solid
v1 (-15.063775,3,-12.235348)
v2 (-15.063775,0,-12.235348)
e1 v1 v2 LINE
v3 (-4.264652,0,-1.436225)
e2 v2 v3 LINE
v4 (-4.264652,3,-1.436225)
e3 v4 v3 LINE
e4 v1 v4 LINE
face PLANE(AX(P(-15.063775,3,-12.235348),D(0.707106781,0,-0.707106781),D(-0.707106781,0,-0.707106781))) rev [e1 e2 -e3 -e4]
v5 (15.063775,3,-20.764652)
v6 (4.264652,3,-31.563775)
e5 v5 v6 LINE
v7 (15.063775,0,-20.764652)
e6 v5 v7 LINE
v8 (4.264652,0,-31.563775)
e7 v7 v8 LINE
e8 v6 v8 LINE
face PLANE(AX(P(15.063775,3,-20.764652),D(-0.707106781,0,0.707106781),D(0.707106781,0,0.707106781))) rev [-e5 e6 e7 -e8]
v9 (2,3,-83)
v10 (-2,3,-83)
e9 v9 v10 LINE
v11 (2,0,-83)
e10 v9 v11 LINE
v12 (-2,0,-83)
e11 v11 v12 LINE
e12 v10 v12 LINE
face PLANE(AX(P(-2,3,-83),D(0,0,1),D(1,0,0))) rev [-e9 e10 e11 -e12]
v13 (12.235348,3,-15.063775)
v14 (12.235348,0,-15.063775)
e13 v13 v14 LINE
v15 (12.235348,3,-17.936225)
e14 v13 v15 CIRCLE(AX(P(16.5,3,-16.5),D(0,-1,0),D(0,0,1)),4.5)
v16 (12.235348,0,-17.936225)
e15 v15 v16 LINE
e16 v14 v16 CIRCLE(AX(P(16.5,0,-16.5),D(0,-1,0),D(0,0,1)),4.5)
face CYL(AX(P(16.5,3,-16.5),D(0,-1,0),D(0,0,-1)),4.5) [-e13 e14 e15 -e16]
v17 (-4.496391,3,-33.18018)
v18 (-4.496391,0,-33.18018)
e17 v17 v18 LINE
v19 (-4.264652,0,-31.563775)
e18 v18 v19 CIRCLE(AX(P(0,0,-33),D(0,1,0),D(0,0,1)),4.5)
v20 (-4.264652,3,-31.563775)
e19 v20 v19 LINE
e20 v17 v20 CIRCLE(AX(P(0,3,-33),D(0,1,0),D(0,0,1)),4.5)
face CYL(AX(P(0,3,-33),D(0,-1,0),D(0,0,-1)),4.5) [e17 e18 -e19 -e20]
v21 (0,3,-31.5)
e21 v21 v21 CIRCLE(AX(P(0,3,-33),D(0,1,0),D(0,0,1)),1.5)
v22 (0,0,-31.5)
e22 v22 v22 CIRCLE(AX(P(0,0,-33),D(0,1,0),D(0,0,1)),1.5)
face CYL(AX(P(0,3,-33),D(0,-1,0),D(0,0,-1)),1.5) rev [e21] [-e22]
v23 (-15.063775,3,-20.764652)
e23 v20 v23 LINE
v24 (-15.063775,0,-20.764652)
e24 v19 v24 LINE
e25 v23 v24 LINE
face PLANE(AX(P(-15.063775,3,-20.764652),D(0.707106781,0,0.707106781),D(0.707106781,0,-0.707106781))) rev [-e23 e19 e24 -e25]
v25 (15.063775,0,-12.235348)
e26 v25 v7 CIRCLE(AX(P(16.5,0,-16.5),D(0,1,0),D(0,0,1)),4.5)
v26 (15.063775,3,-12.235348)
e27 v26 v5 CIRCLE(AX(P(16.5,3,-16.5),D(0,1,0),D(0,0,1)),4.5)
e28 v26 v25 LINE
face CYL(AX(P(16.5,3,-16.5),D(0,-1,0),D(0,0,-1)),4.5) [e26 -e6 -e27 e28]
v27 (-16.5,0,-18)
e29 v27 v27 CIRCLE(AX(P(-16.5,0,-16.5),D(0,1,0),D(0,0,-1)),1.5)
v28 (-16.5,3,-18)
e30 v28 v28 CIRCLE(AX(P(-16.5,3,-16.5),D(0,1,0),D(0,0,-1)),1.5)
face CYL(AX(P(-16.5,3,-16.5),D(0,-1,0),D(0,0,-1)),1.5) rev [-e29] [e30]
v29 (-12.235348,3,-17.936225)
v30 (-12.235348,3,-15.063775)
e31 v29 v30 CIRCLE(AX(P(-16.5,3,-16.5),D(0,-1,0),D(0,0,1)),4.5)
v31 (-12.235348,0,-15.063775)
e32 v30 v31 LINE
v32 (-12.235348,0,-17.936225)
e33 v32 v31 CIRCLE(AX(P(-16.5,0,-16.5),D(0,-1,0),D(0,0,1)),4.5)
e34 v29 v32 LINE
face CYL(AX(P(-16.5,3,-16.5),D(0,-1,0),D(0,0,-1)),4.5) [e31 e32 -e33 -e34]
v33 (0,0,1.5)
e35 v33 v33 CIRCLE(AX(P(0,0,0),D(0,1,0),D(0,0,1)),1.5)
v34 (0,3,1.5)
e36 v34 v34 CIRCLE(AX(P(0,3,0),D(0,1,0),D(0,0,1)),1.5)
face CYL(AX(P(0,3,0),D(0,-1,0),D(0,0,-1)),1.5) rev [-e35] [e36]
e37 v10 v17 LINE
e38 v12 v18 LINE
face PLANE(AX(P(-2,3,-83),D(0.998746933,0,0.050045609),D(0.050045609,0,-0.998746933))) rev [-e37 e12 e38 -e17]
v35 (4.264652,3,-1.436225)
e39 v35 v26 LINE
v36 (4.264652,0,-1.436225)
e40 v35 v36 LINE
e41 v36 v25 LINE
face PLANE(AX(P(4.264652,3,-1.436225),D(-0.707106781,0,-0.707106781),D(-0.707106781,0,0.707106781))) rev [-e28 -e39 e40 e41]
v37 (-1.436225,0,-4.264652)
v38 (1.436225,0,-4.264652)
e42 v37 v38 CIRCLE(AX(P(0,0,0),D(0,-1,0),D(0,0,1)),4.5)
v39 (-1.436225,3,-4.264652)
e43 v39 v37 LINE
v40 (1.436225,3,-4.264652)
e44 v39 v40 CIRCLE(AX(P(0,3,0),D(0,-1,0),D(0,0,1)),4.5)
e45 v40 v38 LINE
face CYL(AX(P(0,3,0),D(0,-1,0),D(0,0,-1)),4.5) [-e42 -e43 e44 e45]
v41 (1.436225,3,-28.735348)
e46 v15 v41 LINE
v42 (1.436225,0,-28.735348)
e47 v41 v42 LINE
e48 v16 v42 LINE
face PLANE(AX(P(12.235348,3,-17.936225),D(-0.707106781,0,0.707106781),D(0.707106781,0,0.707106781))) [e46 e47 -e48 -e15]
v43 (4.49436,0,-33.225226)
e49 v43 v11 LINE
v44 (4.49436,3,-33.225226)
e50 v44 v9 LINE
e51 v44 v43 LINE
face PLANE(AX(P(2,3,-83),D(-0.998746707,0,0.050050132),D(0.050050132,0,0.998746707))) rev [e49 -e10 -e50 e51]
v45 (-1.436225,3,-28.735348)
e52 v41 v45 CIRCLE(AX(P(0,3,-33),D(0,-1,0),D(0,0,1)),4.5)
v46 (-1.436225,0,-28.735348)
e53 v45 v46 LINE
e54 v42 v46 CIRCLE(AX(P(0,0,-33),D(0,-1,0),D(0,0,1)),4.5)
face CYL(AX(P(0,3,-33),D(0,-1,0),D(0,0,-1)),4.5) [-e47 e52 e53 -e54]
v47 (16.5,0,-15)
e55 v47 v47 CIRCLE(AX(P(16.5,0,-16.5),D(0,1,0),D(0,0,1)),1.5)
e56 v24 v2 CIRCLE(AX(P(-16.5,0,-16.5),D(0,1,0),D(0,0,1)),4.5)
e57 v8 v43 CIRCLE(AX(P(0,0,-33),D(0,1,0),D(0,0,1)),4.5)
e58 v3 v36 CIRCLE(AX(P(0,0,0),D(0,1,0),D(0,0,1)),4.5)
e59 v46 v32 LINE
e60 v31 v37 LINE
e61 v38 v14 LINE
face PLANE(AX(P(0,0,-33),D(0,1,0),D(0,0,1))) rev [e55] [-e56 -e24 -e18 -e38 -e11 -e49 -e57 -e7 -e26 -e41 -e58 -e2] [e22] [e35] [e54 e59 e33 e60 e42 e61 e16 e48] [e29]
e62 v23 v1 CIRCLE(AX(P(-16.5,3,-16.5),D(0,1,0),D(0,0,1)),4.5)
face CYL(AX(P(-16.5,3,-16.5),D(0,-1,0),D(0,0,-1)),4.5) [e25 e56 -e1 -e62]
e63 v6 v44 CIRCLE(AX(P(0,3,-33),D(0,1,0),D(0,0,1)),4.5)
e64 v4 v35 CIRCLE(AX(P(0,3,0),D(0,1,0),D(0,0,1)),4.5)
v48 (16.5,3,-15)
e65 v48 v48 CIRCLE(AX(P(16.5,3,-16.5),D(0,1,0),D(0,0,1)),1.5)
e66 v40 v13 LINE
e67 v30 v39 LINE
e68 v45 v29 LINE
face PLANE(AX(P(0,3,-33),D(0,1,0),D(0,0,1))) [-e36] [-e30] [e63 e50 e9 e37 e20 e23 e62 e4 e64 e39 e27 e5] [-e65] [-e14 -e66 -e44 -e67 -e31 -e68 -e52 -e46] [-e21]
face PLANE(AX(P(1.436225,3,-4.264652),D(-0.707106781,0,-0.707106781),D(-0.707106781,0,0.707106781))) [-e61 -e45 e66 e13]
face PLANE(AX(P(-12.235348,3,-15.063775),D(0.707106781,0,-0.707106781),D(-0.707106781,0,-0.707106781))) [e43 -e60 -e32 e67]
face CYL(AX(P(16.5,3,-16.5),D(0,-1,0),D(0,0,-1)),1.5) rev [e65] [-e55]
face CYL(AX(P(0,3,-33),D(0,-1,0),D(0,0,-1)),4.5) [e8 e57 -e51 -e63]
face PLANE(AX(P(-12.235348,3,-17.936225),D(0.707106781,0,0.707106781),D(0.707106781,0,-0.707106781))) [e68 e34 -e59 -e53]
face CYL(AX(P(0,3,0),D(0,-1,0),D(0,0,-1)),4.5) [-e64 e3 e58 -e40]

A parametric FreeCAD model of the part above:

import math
import FreeCAD as App
import Part
import Sketcher
from FreeCAD import Vector
Q = App.Units.Quantity

doc = App.newDocument("Part")
body = doc.addObject("PartDesign::Body", "Body")

sketch1 = body.newObject("Sketcher::SketchObject", "Sketch")
sketch1.AttachmentSupport = (doc.getObject("XZ_Plane"), [""])
sketch1.MapMode = "FlatFace"
sketch1.addGeometry(Part.LineSegment(Vector(2, -83, 0), Vector(-2, -83, 0)), False)
sketch1.addGeometry(Part.LineSegment(Vector(-2, -83, 0), Vector(-4.5, -33.2, 0)), False)
sketch1.addGeometry(Part.ArcOfCircle(Part.Circle(Vector(0, -33, 0), Vector(0, 0, 1), 4.5), math.radians(161), math.radians(182)), False)
sketch1.addGeometry(Part.LineSegment(Vector(-4.3, -31.6, 0), Vector(-15.1, -20.8, 0)), False)
sketch1.addGeometry(Part.ArcOfCircle(Part.Circle(Vector(-16.5, -16.5, 0), Vector(0, 0, 1), 4.5), math.radians(71), math.radians(289)), False)
sketch1.addGeometry(Part.LineSegment(Vector(-15.1, -12.2, 0), Vector(-4.3, -1.4, 0)), False)
sketch1.addGeometry(Part.ArcOfCircle(Part.Circle(Vector(0, 0, 0), Vector(0, 0, 1), 4.5), math.radians(-19), math.radians(199)), False)
sketch1.addGeometry(Part.LineSegment(Vector(4.3, -1.4, 0), Vector(15.1, -12.2, 0)), False)
sketch1.addGeometry(Part.ArcOfCircle(Part.Circle(Vector(16.5, -16.5, 0), Vector(0, 0, 1), 4.5), math.radians(-109), math.radians(109)), False)
sketch1.addGeometry(Part.LineSegment(Vector(15.1, -20.8, 0), Vector(4.3, -31.6, 0)), False)
sketch1.addGeometry(Part.ArcOfCircle(Part.Circle(Vector(0, -33, 0), Vector(0, 0, 1), 4.5), math.radians(-3), math.radians(19)), False)
sketch1.addGeometry(Part.LineSegment(Vector(4.5, -33.2, 0), Vector(2, -83, 0)), False)
sketch1.addGeometry(Part.Circle(Vector(0, 0, 0), Vector(0, 0, 1), 1.5), False)
sketch1.addGeometry(Part.Circle(Vector(16.5, -16.5, 0), Vector(0, 0, 1), 1.5), False)
sketch1.addGeometry(Part.ArcOfCircle(Part.Circle(Vector(16.5, -16.5, 0), Vector(0, 0, 1), 4.5), math.radians(161), math.radians(199)), False)
sketch1.addGeometry(Part.LineSegment(Vector(12.2, -15.1, 0), Vector(1.4, -4.3, 0)), False)
sketch1.addGeometry(Part.ArcOfCircle(Part.Circle(Vector(0, 0, 0), Vector(0, 0, 1), 4.5), math.radians(-109), math.radians(-71)), False)
sketch1.addGeometry(Part.LineSegment(Vector(-1.4, -4.3, 0), Vector(-12.2, -15.1, 0)), False)
sketch1.addGeometry(Part.ArcOfCircle(Part.Circle(Vector(-16.5, -16.5, 0), Vector(0, 0, 1), 4.5), math.radians(-19), math.radians(19)), False)
sketch1.addGeometry(Part.LineSegment(Vector(-12.2, -17.9, 0), Vector(-1.4, -28.7, 0)), False)
sketch1.addGeometry(Part.ArcOfCircle(Part.Circle(Vector(0, -33, 0), Vector(0, 0, 1), 4.5), math.radians(71), math.radians(109)), False)
sketch1.addGeometry(Part.LineSegment(Vector(1.4, -28.7, 0), Vector(12.2, -17.9, 0)), False)
sketch1.addGeometry(Part.Circle(Vector(-16.5, -16.5, 0), Vector(0, 0, 1), 1.5), False)
sketch1.addGeometry(Part.Circle(Vector(0, -33, 0), Vector(0, 0, 1), 1.5), False)
sketch1.addConstraint(Sketcher.Constraint("Coincident", 0, 2, 1, 1))
sketch1.addConstraint(Sketcher.Constraint("Coincident", 1, 2, 2, 2))
sketch1.addConstraint(Sketcher.Constraint("Coincident", 2, 1, 3, 1))
sketch1.addConstraint(Sketcher.Constraint("Coincident", 3, 2, 4, 2))
sketch1.addConstraint(Sketcher.Constraint("Coincident", 4, 1, 5, 1))
sketch1.addConstraint(Sketcher.Constraint("Coincident", 5, 2, 6, 2))
sketch1.addConstraint(Sketcher.Constraint("Coincident", 6, 1, 7, 1))
sketch1.addConstraint(Sketcher.Constraint("Coincident", 7, 2, 8, 2))
sketch1.addConstraint(Sketcher.Constraint("Coincident", 8, 1, 9, 1))
sketch1.addConstraint(Sketcher.Constraint("Coincident", 9, 2, 10, 2))
sketch1.addConstraint(Sketcher.Constraint("Tangent", 10, 1, 11, 1))
sketch1.addConstraint(Sketcher.Constraint("Coincident", 11, 2, 0, 1))
sketch1.addConstraint(Sketcher.Constraint("Coincident", 14, 1, 15, 1))
sketch1.addConstraint(Sketcher.Constraint("Coincident", 15, 2, 16, 2))
sketch1.addConstraint(Sketcher.Constraint("Coincident", 16, 1, 17, 1))
sketch1.addConstraint(Sketcher.Constraint("Coincident", 17, 2, 18, 2))
sketch1.addConstraint(Sketcher.Constraint("Coincident", 18, 1, 19, 1))
sketch1.addConstraint(Sketcher.Constraint("Coincident", 19, 2, 20, 2))
sketch1.addConstraint(Sketcher.Constraint("Coincident", 20, 1, 21, 1))
sketch1.addConstraint(Sketcher.Constraint("Coincident", 21, 2, 14, 2))
sketch1.addConstraint(Sketcher.Constraint("Horizontal", 0))
sketch1.addConstraint(Sketcher.Constraint("Coincident", 6, 3, -1, 1))
sketch1.addConstraint(Sketcher.Constraint("Coincident", 12, 3, -1, 1))
sketch1.addConstraint(Sketcher.Constraint("Coincident", 16, 3, -1, 1))
sketch1.addConstraint(Sketcher.Constraint("Coincident", 10, 3, 2, 3))
sketch1.addConstraint(Sketcher.Constraint("Coincident", 13, 3, 8, 3))
sketch1.addConstraint(Sketcher.Constraint("Coincident", 14, 3, 8, 3))
sketch1.addConstraint(Sketcher.Constraint("Coincident", 18, 3, 4, 3))
sketch1.addConstraint(Sketcher.Constraint("Coincident", 20, 3, 2, 3))
sketch1.addConstraint(Sketcher.Constraint("Coincident", 22, 3, 4, 3))
sketch1.addConstraint(Sketcher.Constraint("Coincident", 23, 3, 2, 3))
sketch1.addConstraint(Sketcher.Constraint("Equal", 2, 4))
sketch1.addConstraint(Sketcher.Constraint("Equal", 4, 6))
sketch1.addConstraint(Sketcher.Constraint("Equal", 6, 8))
sketch1.addConstraint(Sketcher.Constraint("Equal", 8, 10))
sketch1.addConstraint(Sketcher.Constraint("Equal", 12, 13))
sketch1.addConstraint(Sketcher.Constraint("Equal", 10, 14))
sketch1.addConstraint(Sketcher.Constraint("Equal", 14, 16))
sketch1.addConstraint(Sketcher.Constraint("Equal", 16, 18))
sketch1.addConstraint(Sketcher.Constraint("Equal", 18, 20))
sketch1.addConstraint(Sketcher.Constraint("Equal", 13, 22))
sketch1.addConstraint(Sketcher.Constraint("Equal", 22, 23))
sketch1.addConstraint(Sketcher.Constraint("Symmetric", 4, 3, 8, 3, -2))
sketch1.addConstraint(Sketcher.Constraint("Symmetric", 2, 1, 9, 2, -2))
sketch1.addConstraint(Sketcher.Constraint("Perpendicular", 3, 5))
sketch1.addConstraint(Sketcher.Constraint("Perpendicular", 5, 7))
sketch1.addConstraint(Sketcher.Constraint("Perpendicular", 7, 9))
sketch1.addConstraint(Sketcher.Constraint("Perpendicular", 9, 15))
sketch1.addConstraint(Sketcher.Constraint("Perpendicular", 15, 17))
sketch1.addConstraint(Sketcher.Constraint("Perpendicular", 17, 19))
sketch1.addConstraint(Sketcher.Constraint("Perpendicular", 19, 21))
sketch1.addConstraint(Sketcher.Constraint("Horizontal", 5, 2, 6, 1))
sketch1.addConstraint(Sketcher.Constraint("Horizontal", 4, 1, 7, 2))
sketch1.addConstraint(Sketcher.Constraint("Horizontal", 15, 2, 16, 1))
sketch1.addConstraint(Sketcher.Constraint("Horizontal", 19, 2, 20, 1))
sketch1.addConstraint(Sketcher.Constraint("Vertical", 3, 2, 4, 1))
sketch1.addConstraint(Sketcher.Constraint("Vertical", 2, 1, 5, 2))
sketch1.addConstraint(Sketcher.Constraint("Vertical", 17, 2, 18, 1))
sketch1.addConstraint(Sketcher.Constraint("Equal", 9, 15))
sketch1.addConstraint(Sketcher.Constraint("Diameter", 12, Q("3 mm")))
sketch1.addConstraint(Sketcher.Constraint("Radius", 2, Q("4.5 mm")))
sketch1.addConstraint(Sketcher.Constraint("DistanceX", 0, 2, 0, 1, Q("4 mm")))
sketch1.addConstraint(Sketcher.Constraint("DistanceY", 2, 3, -1, 1, Q("33 mm")))
sketch1.addConstraint(Sketcher.Constraint("DistanceX", 0, 2, -1, 1, Q("2 mm")))
sketch1.addConstraint(Sketcher.Constraint("DistanceY", 0, 2, -1, 1, Q("83 mm")))
sketch1.addConstraint(Sketcher.Constraint("DistanceX", 4, 3, 8, 3, Q("33 mm")))
sketch1.addConstraint(Sketcher.Constraint("DistanceX", 1, 2, -1, 1, Q("4.496391 mm")))
sketch1.addConstraint(Sketcher.Constraint("DistanceX", 1, 2, 2, 1, Q("0.231739 mm")))
pad1 = body.newObject("PartDesign::Pad", "Pad")
pad1.Profile = sketch1
pad1.Length = 3
pad1.Reversed = True

doc.recompute()
